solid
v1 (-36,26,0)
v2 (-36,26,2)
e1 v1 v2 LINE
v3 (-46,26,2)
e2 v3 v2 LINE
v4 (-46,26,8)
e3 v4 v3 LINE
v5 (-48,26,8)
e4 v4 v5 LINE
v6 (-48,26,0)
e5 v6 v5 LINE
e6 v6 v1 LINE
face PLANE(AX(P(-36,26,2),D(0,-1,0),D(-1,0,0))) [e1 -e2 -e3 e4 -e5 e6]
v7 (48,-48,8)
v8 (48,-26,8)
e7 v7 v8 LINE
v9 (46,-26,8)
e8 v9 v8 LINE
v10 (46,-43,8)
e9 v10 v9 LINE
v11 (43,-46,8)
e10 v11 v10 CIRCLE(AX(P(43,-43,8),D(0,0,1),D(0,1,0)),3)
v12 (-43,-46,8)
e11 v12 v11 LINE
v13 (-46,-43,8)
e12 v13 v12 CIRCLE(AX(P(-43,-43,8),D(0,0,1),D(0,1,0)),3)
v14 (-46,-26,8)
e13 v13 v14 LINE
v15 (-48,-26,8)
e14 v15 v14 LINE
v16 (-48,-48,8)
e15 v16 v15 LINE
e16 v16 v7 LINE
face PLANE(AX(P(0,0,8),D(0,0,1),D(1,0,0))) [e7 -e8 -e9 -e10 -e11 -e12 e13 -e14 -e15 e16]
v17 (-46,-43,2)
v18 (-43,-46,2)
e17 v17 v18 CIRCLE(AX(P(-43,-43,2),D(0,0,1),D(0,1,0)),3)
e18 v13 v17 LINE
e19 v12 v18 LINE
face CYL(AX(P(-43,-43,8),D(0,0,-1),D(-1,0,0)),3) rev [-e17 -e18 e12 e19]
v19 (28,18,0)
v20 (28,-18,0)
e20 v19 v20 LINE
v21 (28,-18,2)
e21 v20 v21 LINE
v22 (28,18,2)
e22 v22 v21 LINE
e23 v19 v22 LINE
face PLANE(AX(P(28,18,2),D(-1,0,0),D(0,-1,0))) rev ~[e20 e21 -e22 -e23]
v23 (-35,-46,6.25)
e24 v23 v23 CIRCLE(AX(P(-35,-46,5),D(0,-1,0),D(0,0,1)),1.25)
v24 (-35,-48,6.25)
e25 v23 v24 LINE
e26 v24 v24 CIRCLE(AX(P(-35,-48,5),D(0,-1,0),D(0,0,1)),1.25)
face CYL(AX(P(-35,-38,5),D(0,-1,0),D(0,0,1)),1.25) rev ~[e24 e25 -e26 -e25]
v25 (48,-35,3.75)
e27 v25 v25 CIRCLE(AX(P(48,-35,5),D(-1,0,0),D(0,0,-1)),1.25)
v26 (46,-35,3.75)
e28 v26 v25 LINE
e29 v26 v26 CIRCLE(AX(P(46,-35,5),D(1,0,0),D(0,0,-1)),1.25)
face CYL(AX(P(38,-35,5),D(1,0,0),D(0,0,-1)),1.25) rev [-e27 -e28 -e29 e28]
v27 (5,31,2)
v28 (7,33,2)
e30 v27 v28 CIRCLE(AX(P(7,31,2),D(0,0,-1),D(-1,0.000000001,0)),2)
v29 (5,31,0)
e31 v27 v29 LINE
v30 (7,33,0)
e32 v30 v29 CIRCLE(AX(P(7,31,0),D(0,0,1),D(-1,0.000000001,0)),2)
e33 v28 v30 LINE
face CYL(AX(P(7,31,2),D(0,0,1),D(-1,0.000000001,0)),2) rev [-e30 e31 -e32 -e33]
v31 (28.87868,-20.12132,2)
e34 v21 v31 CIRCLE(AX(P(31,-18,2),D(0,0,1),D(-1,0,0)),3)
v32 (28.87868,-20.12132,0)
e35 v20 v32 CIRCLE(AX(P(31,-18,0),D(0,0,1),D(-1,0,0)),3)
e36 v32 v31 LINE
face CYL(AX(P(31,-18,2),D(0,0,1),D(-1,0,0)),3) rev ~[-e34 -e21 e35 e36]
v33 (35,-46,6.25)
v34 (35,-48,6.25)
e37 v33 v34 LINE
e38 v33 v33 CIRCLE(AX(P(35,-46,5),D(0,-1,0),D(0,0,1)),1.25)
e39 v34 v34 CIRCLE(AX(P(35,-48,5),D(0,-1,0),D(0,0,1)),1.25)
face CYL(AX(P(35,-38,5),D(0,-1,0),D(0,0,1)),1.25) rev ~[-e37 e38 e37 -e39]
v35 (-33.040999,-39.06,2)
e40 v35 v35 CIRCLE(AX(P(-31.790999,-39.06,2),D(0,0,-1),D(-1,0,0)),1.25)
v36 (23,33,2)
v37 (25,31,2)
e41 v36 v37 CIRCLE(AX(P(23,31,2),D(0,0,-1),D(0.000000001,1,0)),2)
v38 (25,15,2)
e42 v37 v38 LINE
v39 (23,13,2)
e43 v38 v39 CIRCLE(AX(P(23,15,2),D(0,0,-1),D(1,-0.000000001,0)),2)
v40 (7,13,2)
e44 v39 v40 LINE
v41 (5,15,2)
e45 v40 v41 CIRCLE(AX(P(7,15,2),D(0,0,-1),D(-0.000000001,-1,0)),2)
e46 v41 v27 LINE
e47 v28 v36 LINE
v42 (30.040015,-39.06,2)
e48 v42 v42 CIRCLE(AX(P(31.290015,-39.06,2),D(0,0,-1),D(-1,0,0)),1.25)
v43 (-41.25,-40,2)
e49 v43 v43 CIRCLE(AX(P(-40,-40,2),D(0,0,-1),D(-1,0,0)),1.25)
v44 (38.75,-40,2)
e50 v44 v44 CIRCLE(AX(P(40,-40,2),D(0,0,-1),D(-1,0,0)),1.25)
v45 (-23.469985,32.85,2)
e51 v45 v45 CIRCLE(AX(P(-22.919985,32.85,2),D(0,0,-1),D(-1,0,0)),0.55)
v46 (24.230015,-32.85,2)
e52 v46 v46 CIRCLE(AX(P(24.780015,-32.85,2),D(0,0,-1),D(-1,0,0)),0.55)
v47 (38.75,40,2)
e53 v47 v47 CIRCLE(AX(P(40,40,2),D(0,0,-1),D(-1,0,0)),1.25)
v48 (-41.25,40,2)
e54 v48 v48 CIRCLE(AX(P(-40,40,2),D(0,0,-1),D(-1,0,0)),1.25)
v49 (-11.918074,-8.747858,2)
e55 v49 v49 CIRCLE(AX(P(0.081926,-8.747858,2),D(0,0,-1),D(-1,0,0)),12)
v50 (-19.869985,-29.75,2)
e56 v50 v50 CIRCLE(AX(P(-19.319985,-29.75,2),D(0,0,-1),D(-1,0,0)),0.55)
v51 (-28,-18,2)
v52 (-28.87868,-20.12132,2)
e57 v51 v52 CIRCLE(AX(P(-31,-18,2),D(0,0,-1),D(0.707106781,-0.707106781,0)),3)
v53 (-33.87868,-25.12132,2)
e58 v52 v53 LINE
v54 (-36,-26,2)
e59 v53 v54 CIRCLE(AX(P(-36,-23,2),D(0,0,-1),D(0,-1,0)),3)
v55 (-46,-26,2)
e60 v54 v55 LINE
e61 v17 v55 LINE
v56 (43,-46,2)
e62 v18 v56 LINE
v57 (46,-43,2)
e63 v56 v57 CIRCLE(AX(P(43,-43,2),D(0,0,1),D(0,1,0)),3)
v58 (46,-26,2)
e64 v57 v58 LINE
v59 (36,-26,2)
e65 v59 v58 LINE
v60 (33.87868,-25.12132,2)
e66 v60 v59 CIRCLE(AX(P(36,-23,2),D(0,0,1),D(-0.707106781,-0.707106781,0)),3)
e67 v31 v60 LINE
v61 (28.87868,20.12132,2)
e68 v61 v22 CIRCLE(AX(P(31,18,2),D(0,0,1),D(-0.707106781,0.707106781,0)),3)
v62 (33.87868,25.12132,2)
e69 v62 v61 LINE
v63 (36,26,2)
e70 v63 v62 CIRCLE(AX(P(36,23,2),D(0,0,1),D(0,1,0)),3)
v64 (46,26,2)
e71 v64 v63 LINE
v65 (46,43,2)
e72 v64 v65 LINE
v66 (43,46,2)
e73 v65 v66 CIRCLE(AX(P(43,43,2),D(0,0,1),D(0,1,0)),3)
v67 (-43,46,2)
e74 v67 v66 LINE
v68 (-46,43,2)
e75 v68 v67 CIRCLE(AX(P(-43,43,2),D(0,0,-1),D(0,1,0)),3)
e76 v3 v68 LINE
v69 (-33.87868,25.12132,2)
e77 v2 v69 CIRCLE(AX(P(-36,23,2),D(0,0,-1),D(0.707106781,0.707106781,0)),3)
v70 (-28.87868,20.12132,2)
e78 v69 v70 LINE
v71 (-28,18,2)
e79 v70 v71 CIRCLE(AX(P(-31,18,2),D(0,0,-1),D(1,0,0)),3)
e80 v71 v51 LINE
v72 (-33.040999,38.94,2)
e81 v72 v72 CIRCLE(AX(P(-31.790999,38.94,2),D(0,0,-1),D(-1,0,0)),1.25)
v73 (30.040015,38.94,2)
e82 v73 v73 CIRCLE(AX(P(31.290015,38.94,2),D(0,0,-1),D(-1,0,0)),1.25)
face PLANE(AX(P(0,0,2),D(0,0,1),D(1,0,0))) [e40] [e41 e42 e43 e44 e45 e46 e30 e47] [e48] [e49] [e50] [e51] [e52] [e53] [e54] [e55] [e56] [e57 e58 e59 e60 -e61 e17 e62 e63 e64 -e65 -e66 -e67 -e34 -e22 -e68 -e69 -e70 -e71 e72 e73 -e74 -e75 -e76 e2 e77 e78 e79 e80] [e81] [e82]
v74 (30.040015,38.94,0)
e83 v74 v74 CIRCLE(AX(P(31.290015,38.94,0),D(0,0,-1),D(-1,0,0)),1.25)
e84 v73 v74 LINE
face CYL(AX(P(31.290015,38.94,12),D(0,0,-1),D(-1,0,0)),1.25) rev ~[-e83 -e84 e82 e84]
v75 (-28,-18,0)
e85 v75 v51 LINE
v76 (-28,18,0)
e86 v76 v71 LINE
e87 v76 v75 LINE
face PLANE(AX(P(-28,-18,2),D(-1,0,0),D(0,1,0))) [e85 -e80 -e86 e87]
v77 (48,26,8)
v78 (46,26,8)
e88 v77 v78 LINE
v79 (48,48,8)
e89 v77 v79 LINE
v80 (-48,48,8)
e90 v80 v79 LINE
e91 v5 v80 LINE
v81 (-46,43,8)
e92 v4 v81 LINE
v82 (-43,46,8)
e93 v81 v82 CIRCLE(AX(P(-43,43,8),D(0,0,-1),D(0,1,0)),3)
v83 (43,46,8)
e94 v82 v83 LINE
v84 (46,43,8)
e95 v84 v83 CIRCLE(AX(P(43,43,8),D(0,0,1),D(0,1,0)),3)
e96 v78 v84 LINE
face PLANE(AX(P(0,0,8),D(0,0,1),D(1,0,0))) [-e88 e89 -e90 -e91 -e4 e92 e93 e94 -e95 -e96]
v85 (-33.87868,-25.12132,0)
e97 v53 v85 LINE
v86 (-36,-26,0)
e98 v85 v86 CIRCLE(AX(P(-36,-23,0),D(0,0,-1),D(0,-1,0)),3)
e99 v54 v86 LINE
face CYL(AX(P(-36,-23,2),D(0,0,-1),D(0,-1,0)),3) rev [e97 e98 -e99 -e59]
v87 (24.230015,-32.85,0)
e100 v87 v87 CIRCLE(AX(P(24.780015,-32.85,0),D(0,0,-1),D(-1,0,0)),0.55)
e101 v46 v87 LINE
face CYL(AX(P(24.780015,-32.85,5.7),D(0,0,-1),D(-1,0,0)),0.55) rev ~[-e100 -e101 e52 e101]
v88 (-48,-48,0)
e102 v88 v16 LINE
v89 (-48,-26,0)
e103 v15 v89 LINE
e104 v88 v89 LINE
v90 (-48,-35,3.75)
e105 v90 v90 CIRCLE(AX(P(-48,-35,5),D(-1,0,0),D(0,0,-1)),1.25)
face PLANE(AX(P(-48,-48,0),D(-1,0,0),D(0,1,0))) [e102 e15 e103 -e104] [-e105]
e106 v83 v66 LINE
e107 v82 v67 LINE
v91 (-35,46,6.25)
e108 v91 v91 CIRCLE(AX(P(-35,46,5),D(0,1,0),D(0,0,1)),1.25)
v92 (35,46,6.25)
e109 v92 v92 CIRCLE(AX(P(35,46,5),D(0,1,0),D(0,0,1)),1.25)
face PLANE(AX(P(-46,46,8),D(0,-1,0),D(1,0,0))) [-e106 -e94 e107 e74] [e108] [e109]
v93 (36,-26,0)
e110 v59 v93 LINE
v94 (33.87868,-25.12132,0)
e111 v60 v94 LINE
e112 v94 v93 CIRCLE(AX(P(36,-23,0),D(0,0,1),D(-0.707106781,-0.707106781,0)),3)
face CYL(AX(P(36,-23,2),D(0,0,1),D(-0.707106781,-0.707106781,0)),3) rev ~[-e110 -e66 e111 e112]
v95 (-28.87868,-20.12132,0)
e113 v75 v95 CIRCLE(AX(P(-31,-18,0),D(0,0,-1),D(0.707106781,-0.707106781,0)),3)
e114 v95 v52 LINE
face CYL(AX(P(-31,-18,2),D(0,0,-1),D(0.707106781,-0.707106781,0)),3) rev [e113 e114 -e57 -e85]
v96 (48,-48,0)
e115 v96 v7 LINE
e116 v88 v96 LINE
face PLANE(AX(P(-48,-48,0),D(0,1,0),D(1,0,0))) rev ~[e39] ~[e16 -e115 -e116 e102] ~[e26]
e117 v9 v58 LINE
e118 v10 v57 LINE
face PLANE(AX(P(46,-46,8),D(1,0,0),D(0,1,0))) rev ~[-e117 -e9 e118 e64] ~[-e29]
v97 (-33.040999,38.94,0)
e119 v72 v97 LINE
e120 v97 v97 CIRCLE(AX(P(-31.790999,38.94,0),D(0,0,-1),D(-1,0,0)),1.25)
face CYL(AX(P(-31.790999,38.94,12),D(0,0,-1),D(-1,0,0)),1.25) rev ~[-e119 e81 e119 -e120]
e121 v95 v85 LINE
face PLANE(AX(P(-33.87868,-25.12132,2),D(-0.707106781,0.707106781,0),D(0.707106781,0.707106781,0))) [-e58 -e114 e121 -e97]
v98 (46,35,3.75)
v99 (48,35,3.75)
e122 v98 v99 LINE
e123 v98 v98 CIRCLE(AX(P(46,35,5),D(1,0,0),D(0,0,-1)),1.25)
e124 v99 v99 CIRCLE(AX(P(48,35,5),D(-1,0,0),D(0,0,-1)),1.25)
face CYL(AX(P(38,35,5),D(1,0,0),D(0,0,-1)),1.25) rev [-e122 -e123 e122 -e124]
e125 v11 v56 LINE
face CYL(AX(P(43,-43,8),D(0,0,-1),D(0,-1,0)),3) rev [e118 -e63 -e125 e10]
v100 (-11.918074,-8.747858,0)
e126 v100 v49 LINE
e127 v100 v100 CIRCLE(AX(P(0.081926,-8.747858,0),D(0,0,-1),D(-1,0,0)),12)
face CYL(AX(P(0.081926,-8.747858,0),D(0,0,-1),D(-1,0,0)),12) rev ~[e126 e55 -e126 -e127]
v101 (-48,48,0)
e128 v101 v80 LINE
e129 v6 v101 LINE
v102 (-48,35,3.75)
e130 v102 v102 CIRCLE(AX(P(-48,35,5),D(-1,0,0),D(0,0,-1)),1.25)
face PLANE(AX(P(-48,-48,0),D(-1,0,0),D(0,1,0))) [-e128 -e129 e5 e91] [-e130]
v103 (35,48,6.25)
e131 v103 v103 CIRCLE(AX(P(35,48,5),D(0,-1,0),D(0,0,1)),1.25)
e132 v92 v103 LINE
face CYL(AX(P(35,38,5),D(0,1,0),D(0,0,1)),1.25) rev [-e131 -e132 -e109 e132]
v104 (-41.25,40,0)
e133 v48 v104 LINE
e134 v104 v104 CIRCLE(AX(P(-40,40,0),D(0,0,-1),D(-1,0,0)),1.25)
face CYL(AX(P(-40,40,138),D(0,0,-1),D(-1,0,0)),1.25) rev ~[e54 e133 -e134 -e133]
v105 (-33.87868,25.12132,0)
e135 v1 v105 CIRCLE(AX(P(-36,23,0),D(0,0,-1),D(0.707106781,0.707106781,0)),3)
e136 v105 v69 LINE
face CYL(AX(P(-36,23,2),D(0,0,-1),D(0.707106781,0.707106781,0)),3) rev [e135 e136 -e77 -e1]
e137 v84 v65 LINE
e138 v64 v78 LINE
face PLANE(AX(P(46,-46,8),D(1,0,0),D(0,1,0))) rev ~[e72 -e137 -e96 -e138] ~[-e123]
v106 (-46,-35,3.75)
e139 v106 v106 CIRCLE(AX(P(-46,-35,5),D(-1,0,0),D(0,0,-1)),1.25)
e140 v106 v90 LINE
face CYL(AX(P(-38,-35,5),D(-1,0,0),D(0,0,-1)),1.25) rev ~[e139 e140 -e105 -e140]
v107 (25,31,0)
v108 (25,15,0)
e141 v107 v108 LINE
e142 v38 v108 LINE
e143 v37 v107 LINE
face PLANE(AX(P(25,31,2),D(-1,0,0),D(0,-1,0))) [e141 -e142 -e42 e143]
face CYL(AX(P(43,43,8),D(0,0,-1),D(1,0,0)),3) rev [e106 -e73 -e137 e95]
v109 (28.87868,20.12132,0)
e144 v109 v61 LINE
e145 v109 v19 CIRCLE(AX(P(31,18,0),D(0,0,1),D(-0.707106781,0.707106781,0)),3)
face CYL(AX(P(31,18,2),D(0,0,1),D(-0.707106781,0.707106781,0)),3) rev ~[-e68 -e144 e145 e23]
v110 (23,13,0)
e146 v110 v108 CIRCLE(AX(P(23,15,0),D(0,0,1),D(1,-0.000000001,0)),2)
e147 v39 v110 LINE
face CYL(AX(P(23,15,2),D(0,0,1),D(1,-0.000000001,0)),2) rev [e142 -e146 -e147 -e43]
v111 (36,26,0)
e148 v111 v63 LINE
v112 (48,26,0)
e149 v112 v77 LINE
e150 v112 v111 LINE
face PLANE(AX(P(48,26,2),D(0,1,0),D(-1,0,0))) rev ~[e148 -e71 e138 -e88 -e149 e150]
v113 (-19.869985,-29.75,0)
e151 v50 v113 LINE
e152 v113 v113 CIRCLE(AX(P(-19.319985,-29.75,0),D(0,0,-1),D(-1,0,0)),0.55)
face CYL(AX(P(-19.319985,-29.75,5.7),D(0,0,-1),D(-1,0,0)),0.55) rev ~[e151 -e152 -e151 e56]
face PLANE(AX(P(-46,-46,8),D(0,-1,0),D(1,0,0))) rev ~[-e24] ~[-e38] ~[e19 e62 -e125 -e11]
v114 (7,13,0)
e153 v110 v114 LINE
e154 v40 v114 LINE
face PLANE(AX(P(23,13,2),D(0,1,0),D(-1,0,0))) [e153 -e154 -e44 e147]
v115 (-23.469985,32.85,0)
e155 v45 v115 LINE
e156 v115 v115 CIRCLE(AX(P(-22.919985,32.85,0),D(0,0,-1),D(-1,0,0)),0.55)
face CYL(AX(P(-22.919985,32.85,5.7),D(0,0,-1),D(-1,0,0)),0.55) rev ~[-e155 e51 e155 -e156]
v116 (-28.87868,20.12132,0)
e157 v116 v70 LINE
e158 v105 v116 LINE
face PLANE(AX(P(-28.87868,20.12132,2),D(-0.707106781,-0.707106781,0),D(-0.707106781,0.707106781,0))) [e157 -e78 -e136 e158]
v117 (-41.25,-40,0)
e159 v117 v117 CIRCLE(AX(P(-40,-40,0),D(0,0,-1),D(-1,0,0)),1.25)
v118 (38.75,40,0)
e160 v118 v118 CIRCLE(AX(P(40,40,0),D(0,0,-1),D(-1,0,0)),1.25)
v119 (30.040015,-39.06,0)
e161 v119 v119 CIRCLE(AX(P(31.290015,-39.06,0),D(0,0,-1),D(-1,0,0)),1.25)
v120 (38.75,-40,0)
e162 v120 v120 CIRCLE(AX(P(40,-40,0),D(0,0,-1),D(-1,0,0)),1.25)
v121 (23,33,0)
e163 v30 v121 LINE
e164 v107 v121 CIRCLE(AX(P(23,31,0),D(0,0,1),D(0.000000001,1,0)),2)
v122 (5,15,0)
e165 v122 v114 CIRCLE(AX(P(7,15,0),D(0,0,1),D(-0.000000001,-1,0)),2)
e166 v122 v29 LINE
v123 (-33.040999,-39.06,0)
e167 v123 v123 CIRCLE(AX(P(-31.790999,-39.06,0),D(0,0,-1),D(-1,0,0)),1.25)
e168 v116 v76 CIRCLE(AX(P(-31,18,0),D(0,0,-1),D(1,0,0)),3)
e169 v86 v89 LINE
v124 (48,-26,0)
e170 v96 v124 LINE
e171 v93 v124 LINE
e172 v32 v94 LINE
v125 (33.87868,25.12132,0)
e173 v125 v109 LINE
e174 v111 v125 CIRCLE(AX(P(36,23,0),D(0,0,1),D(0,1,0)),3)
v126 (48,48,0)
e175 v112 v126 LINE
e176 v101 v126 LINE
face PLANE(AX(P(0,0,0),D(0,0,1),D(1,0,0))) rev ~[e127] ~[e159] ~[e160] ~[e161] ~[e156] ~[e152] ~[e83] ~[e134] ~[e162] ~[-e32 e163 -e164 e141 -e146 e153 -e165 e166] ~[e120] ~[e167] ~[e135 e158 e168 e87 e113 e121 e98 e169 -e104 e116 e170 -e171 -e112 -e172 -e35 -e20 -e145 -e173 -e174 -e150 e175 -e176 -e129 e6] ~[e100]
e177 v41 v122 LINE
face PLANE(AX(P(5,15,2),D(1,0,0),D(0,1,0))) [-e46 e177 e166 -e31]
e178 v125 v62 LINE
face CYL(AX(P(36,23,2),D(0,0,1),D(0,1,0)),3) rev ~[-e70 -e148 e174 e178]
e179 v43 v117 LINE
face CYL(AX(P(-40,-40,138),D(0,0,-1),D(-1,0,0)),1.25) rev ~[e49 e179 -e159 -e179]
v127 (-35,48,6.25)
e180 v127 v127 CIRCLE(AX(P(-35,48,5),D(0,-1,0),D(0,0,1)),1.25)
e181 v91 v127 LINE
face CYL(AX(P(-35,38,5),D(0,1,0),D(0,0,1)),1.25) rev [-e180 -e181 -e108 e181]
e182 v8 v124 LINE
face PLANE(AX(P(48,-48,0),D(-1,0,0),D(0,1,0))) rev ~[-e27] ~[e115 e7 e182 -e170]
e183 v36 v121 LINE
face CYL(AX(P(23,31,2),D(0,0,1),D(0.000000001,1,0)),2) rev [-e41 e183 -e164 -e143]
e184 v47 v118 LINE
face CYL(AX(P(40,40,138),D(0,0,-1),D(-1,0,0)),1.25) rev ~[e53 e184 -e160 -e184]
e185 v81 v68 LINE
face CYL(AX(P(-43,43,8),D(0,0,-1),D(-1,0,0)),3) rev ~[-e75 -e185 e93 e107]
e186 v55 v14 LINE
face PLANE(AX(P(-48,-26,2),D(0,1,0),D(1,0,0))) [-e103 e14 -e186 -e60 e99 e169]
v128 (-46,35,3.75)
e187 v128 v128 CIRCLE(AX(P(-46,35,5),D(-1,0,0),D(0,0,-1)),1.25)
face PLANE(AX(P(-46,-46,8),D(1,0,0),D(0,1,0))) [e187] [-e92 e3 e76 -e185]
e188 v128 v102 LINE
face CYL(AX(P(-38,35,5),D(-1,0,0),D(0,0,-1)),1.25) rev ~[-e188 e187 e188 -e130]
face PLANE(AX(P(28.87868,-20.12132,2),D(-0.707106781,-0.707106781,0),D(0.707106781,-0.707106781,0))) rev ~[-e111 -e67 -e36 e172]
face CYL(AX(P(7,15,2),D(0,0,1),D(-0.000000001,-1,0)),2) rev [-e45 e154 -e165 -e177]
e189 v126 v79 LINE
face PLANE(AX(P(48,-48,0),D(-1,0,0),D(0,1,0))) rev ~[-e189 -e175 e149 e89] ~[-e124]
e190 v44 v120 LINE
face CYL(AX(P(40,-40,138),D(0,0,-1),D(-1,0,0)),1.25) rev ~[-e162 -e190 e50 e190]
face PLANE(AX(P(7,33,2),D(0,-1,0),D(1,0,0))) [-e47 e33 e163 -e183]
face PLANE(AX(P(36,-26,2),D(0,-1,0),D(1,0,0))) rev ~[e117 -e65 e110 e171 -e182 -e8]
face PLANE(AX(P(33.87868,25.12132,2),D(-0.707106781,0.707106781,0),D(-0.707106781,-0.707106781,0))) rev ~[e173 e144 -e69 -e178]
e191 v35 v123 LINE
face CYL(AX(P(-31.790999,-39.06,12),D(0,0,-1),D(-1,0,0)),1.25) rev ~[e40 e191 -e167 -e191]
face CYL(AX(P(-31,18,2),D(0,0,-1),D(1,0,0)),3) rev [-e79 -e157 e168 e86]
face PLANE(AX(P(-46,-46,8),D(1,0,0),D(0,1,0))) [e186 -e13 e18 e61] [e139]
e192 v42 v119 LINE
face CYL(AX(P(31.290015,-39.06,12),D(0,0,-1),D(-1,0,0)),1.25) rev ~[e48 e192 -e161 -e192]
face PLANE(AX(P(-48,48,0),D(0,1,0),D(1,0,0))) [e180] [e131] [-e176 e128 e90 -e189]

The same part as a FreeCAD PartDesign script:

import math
import FreeCAD as App
import Part
import Sketcher
from FreeCAD import Vector
Q = App.Units.Quantity


def edges_at(feature, points):
    """Names of the edges that pass closest to the given points."""
    edges = feature.Shape.Edges
    near = lambda p: min(range(len(edges)), key=lambda i: edges[i].distToShape(Part.Vertex(*p))[0])
    return sorted({f"Edge{near(p) + 1}" for p in points})


def add_polygon(sketch, points):
    """Adds a closed chain of lines whose ends are joined by coincident constraints."""
    first, n = sketch.GeometryCount, len(points)
    for a, b in zip(points, points[1:] + points[:1]):
        sketch.addGeometry(Part.LineSegment(App.Vector(*a, 0), App.Vector(*b, 0)), False)
    for i in range(n):
        sketch.addConstraint(Sketcher.Constraint("Coincident", first + i, 2, first + (i + 1) % n, 1))

doc = App.newDocument("Part")
body = doc.addObject("PartDesign::Body", "Body")

# Sketch on XY plane
sketch1 = body.newObject("Sketcher::SketchObject", "Sketch")
sketch1.AttachmentSupport = (doc.getObject("XY_Plane"), [""])
sketch1.MapMode = "FlatFace"
add_polygon(sketch1, [(-48, 48), (-48, -48), (48, -48), (48, 48)])  # lines 0-3
sketch1.addConstraint(Sketcher.Constraint("Vertical", 0))
sketch1.addConstraint(Sketcher.Constraint("Horizontal", 1))
sketch1.addConstraint(Sketcher.Constraint("Vertical", 2))
sketch1.addConstraint(Sketcher.Constraint("Horizontal", 3))
sketch1.addConstraint(Sketcher.Constraint("Symmetric", 0, 2, 2, 2, -1, 1))
sketch1.addConstraint(Sketcher.Constraint("Equal", 3, 0))
sketch1.addConstraint(Sketcher.Constraint("DistanceX", 1, 1, 1, 2, 96.0))
pad1 = body.newObject("PartDesign::Pad", "Pad")
pad1.Profile = sketch1
pad1.Length = 8

# Sketch on XY plane
sketch2 = body.newObject("Sketcher::SketchObject", "Sketch001")
sketch2.AttachmentSupport = (doc.getObject("XY_Plane"), [""])
sketch2.MapMode = "FlatFace"
sketch2.AttachmentOffset = App.Placement(Vector(0, 0, 8), App.Rotation())
add_polygon(sketch2, [(-46, 46), (-46, -46), (46, -46), (46, 46)])  # lines 0-3
sketch2.addConstraint(Sketcher.Constraint("Vertical", 0))
sketch2.addConstraint(Sketcher.Constraint("Horizontal", 1))
sketch2.addConstraint(Sketcher.Constraint("Vertical", 2))
sketch2.addConstraint(Sketcher.Constraint("Horizontal", 3))
sketch2.addConstraint(Sketcher.Constraint("Symmetric", 0, 2, 2, 2, -1, 1))
sketch2.addConstraint(Sketcher.Constraint("Equal", 3, 0))
sketch2.addConstraint(Sketcher.Constraint("DistanceX", 1, 1, 1, 2, 92.0))
pocket1 = body.newObject("PartDesign::Pocket", "Pocket")
pocket1.Profile = sketch2
pocket1.Length = 6

# Sketch on XY plane
sketch3 = body.newObject("Sketcher::SketchObject", "Sketch002")
sketch3.AttachmentSupport = (doc.getObject("XY_Plane"), [""])
sketch3.MapMode = "FlatFace"
sketch3.AttachmentOffset = App.Placement(Vector(0, 0, 2), App.Rotation())
sketch3.addGeometry(Part.LineSegment(Vector(-33.9, -25.1, 0), Vector(-28.9, -20.1, 0)), False)
sketch3.addGeometry(Part.ArcOfCircle(Part.Circle(Vector(-31, -18, 0), Vector(0, 0, 1), 3), math.radians(-45), math.radians(0)), False)
sketch3.addGeometry(Part.LineSegment(Vector(-28, -18, 0), Vector(-28, 18, 0)), False)
sketch3.addGeometry(Part.ArcOfCircle(Part.Circle(Vector(-31, 18, 0), Vector(0, 0, 1), 3), math.radians(0), math.radians(45)), False)
sketch3.addGeometry(Part.LineSegment(Vector(-28.9, 20.1, 0), Vector(-33.9, 25.1, 0)), False)
sketch3.addGeometry(Part.ArcOfCircle(Part.Circle(Vector(-36, 23, 0), Vector(0, 0, 1), 3), math.radians(45), math.radians(90)), False)
sketch3.addGeometry(Part.LineSegment(Vector(-36, 26, 0), Vector(-48, 26, 0)), False)
sketch3.addGeometry(Part.LineSegment(Vector(-48, 26, 0), Vector(-48, -26, 0)), False)
sketch3.addGeometry(Part.LineSegment(Vector(-48, -26, 0), Vector(-36, -26, 0)), False)
sketch3.addGeometry(Part.ArcOfCircle(Part.Circle(Vector(-36, -23, 0), Vector(0, 0, 1), 3), math.radians(-90), math.radians(-45)), False)
sketch3.addGeometry(Part.LineSegment(Vector(48, -26, 0), Vector(48, 26, 0)), False)
sketch3.addGeometry(Part.LineSegment(Vector(48, 26, 0), Vector(36, 26, 0)), False)
sketch3.addGeometry(Part.ArcOfCircle(Part.Circle(Vector(36, 23, 0), Vector(0, 0, 1), 3), math.radians(90), math.radians(135)), False)
sketch3.addGeometry(Part.LineSegment(Vector(33.9, 25.1, 0), Vector(28.9, 20.1, 0)), False)
sketch3.addGeometry(Part.ArcOfCircle(Part.Circle(Vector(31, 18, 0), Vector(0, 0, 1), 3), math.radians(135), math.radians(180)), False)
sketch3.addGeometry(Part.LineSegment(Vector(28, 18, 0), Vector(28, -18, 0)), False)
sketch3.addGeometry(Part.ArcOfCircle(Part.Circle(Vector(31, -18, 0), Vector(0, 0, 1), 3), math.radians(180), math.radians(225)), False)
sketch3.addGeometry(Part.LineSegment(Vector(28.9, -20.1, 0), Vector(33.9, -25.1, 0)), False)
sketch3.addGeometry(Part.ArcOfCircle(Part.Circle(Vector(36, -23, 0), Vector(0, 0, 1), 3), math.radians(-135), math.radians(-90)), False)
sketch3.addGeometry(Part.LineSegment(Vector(36, -26, 0), Vector(48, -26, 0)), False)
sketch3.addConstraint(Sketcher.Constraint("Tangent", 0, 2, 1, 1))
sketch3.addConstraint(Sketcher.Constraint("Tangent", 1, 2, 2, 1))
sketch3.addConstraint(Sketcher.Constraint("Tangent", 2, 2, 3, 1))
sketch3.addConstraint(Sketcher.Constraint("Tangent", 3, 2, 4, 1))
sketch3.addConstraint(Sketcher.Constraint("Tangent", 4, 2, 5, 1))
sketch3.addConstraint(Sketcher.Constraint("Tangent", 5, 2, 6, 1))
sketch3.addConstraint(Sketcher.Constraint("Coincident", 6, 2, 7, 1))
sketch3.addConstraint(Sketcher.Constraint("Coincident", 7, 2, 8, 1))
sketch3.addConstraint(Sketcher.Constraint("Tangent", 8, 2, 9, 1))
sketch3.addConstraint(Sketcher.Constraint("Tangent", 9, 2, 0, 1))
sketch3.addConstraint(Sketcher.Constraint("Coincident", 10, 2, 11, 1))
sketch3.addConstraint(Sketcher.Constraint("Tangent", 11, 2, 12, 1))
sketch3.addConstraint(Sketcher.Constraint("Tangent", 12, 2, 13, 1))
sketch3.addConstraint(Sketcher.Constraint("Tangent", 13, 2, 14, 1))
sketch3.addConstraint(Sketcher.Constraint("Tangent", 14, 2, 15, 1))
sketch3.addConstraint(Sketcher.Constraint("Tangent", 15, 2, 16, 1))
sketch3.addConstraint(Sketcher.Constraint("Tangent", 16, 2, 17, 1))
sketch3.addConstraint(Sketcher.Constraint("Tangent", 17, 2, 18, 1))
sketch3.addConstraint(Sketcher.Constraint("Tangent", 18, 2, 19, 1))
sketch3.addConstraint(Sketcher.Constraint("Coincident", 19, 2, 10, 1))
sketch3.addConstraint(Sketcher.Constraint("Vertical", 2))
sketch3.addConstraint(Sketcher.Constraint("Horizontal", 6))
sketch3.addConstraint(Sketcher.Constraint("Vertical", 7))
sketch3.addConstraint(Sketcher.Constraint("Horizontal", 8))
sketch3.addConstraint(Sketcher.Constraint("Vertical", 10))
sketch3.addConstraint(Sketcher.Constraint("Horizontal", 11))
sketch3.addConstraint(Sketcher.Constraint("Vertical", 15))
sketch3.addConstraint(Sketcher.Constraint("Horizontal", 19))
sketch3.addConstraint(Sketcher.Constraint("Equal", 1, 3))
sketch3.addConstraint(Sketcher.Constraint("Equal", 3, 5))
sketch3.addConstraint(Sketcher.Constraint("Equal", 5, 9))
sketch3.addConstraint(Sketcher.Constraint("Equal", 9, 12))
sketch3.addConstraint(Sketcher.Constraint("Equal", 12, 14))
sketch3.addConstraint(Sketcher.Constraint("Equal", 14, 16))
sketch3.addConstraint(Sketcher.Constraint("Equal", 16, 18))
sketch3.addConstraint(Sketcher.Constraint("Symmetric", 9, 3, 12, 3, -1, 1))
sketch3.addConstraint(Sketcher.Constraint("Symmetric", 1, 3, 14, 3, -1, 1))
sketch3.addConstraint(Sketcher.Constraint("Symmetric", 5, 3, 18, 3, -1, 1))
sketch3.addConstraint(Sketcher.Constraint("Symmetric", 5, 3, 12, 3, -2))
sketch3.addConstraint(Sketcher.Constraint("Perpendicular", 0, 4))
sketch3.addConstraint(Sketcher.Constraint("Perpendicular", 13, 17))
sketch3.addConstraint(Sketcher.Constraint("Horizontal", 3, 3, 14, 3))
sketch3.addConstraint(Sketcher.Constraint("Equal", 8, 11))
sketch3.addConstraint(Sketcher.Constraint("Radius", 1, 3.0))
sketch3.addConstraint(Sketcher.Constraint("DistanceX", 6, 2, 6, 1, 12.0))
sketch3.addConstraint(Sketcher.Constraint("DistanceY", 2, 1, 2, 2, 36.0))
sketch3.addConstraint(Sketcher.Constraint("DistanceY", 7, 2, 7, 1, 52.0))
sketch3.addConstraint(Sketcher.Constraint("DistanceX", 1, 3, -1, 1, 31.0))
pocket2 = body.newObject("PartDesign::Pocket", "Pocket001")
pocket2.Profile = sketch3
pocket2.Length = 12
pocket2.Midplane = True
doc.recompute()

fillet = body.newObject("PartDesign::Fillet", "Fillet")
fillet.Base = (pocket2, edges_at(pocket2, [
    (-46, -46, 5),
    (-46, 46, 5),
    (46, 46, 5),
    (46, -46, 5),
]))
fillet.Radius = 3

# Sketch on XZ plane
sketch4 = body.newObject("Sketcher::SketchObject", "Sketch003")
sketch4.AttachmentSupport = (doc.getObject("XZ_Plane"), [""])
sketch4.MapMode = "FlatFace"
sketch4.AttachmentOffset = App.Placement(Vector(0, 0, 35), App.Rotation())
add_polygon(sketch4, [(37.2, 5), (48, 5), (48, 3.8), (38, 3.8)])  # lines 0-3
sketch4.addGeometry(Part.LineSegment(Vector(48, 5, 0), Vector(37.2, 5, 0)), True)  # axis
sketch4.addConstraint(Sketcher.Constraint("Horizontal", 0))
sketch4.addConstraint(Sketcher.Constraint("Vertical", 1))
sketch4.addConstraint(Sketcher.Constraint("Horizontal", 2))
sketch4.addConstraint(Sketcher.Constraint("Horizontal", 4))
sketch4.addConstraint(Sketcher.Constraint("Coincident", 4, 1, 0, 2))
sketch4.addConstraint(Sketcher.Constraint("Equal", 0, 4))
sketch4.addConstraint(Sketcher.Constraint("DistanceX", 2, 2, 2, 1, 10.0))
sketch4.addConstraint(Sketcher.Constraint("Angle", 3, Q("121 deg")))
sketch4.addConstraint(Sketcher.Constraint("DistanceX", -1, 1, 0, 2, 48.0))
sketch4.addConstraint(Sketcher.Constraint("DistanceY", -1, 1, 0, 2, 5.0))
sketch4.addConstraint(Sketcher.Constraint("DistanceY", 1, 2, 1, 1, 1.25))
groove = body.newObject("PartDesign::Groove", "Groove")
groove.Profile = sketch4
groove.ReferenceAxis = (sketch4, ["Axis0"])
groove.Angle = 360
doc.recompute()

linearpattern = body.newObject("PartDesign::LinearPattern", "LinearPattern")
linearpattern.Originals = [groove]
linearpattern.Direction = (doc.getObject("Y_Axis"), [""])
linearpattern.Mode = "offset"
linearpattern.Offset = 70
linearpattern.Occurrences = 2
body.Tip = linearpattern

# Sketch on YZ plane
sketch5 = body.newObject("Sketcher::SketchObject", "Sketch004")
sketch5.AttachmentSupport = (doc.getObject("YZ_Plane"), [""])
sketch5.MapMode = "FlatFace"
sketch5.AttachmentOffset = App.Placement(Vector(0, 0, 35), App.Rotation())
add_polygon(sketch5, [(37.2, 5), (48, 5), (48, 6.2), (38, 6.2)])  # lines 0-3
sketch5.addGeometry(Part.LineSegment(Vector(48, 5, 0), Vector(37.2, 5, 0)), True)  # axis
sketch5.addConstraint(Sketcher.Constraint("Horizontal", 0))
sketch5.addConstraint(Sketcher.Constraint("Vertical", 1))
sketch5.addConstraint(Sketcher.Constraint("Horizontal", 2))
sketch5.addConstraint(Sketcher.Constraint("Horizontal", 4))
sketch5.addConstraint(Sketcher.Constraint("Coincident", 4, 1, 0, 2))
sketch5.addConstraint(Sketcher.Constraint("Equal", 0, 4))
sketch5.addConstraint(Sketcher.Constraint("DistanceX", 2, 2, 2, 1, 10.0))
sketch5.addConstraint(Sketcher.Constraint("Angle", 3, Q("-121 deg")))
sketch5.addConstraint(Sketcher.Constraint("DistanceX", -1, 1, 0, 2, 48.0))
sketch5.addConstraint(Sketcher.Constraint("DistanceY", -1, 1, 0, 2, 5.0))
sketch5.addConstraint(Sketcher.Constraint("DistanceY", 1, 1, 1, 2, 1.25))
groove2 = body.newObject("PartDesign::Groove", "Groove001")
groove2.Profile = sketch5
groove2.ReferenceAxis = (sketch5, ["Axis0"])
groove2.Angle = 360
doc.recompute()

linearpattern2 = body.newObject("PartDesign::LinearPattern", "LinearPattern001")
linearpattern2.Originals = [groove2]
linearpattern2.Direction = (doc.getObject("X_Axis"), [""])
linearpattern2.Mode = "offset"
linearpattern2.Offset = 70
linearpattern2.Occurrences = 2
linearpattern2.Reversed = True
body.Tip = linearpattern2
doc.recompute()

mirrored = body.newObject("PartDesign::Mirrored", "Mirrored")
mirrored.Originals = [groove]
mirrored.MirrorPlane = (doc.getObject("YZ_Plane"), [""])
body.Tip = mirrored

# Sketch on XZ plane
sketch6 = body.newObject("Sketcher::SketchObject", "Sketch005")
sketch6.AttachmentSupport = (doc.getObject("XZ_Plane"), [""])
sketch6.MapMode = "FlatFace"
sketch6.AttachmentOffset = App.Placement(Vector(0, 0, -35), App.Rotation())
add_polygon(sketch6, [(-48, 5), (-37.2, 5), (-38, 3.8), (-48, 3.8)])  # lines 0-3
sketch6.addGeometry(Part.LineSegment(Vector(-37.2, 5, 0), Vector(-48, 5, 0)), True)  # axis
sketch6.addConstraint(Sketcher.Constraint("Horizontal", 0))
sketch6.addConstraint(Sketcher.Constraint("Horizontal", 2))
sketch6.addConstraint(Sketcher.Constraint("Vertical", 3))
sketch6.addConstraint(Sketcher.Constraint("Horizontal", 4))
sketch6.addConstraint(Sketcher.Constraint("Coincident", 4, 1, 0, 2))
sketch6.addConstraint(Sketcher.Constraint("Vertical", 2, 2, 4, 2))
sketch6.addConstraint(Sketcher.Constraint("DistanceX", 2, 2, 2, 1, 10.0))
sketch6.addConstraint(Sketcher.Constraint("Angle", 1, Q("-121 deg")))
sketch6.addConstraint(Sketcher.Constraint("DistanceY", -1, 1, 0, 2, 5.0))
sketch6.addConstraint(Sketcher.Constraint("DistanceX", 1, 2, -1, 1, 38.0))
sketch6.addConstraint(Sketcher.Constraint("DistanceY", 3, 1, 3, 2, 1.25))
groove3 = body.newObject("PartDesign::Groove", "Groove002")
groove3.Profile = sketch6
groove3.ReferenceAxis = (sketch6, ["Axis0"])
groove3.Angle = 360
doc.recompute()

mirrored2 = body.newObject("PartDesign::Mirrored", "Mirrored001")
mirrored2.Originals = [groove2]
mirrored2.MirrorPlane = (doc.getObject("XZ_Plane"), [""])
body.Tip = mirrored2

# Sketch on YZ plane
sketch7 = body.newObject("Sketcher::SketchObject", "Sketch006")
sketch7.AttachmentSupport = (doc.getObject("YZ_Plane"), [""])
sketch7.MapMode = "FlatFace"
sketch7.AttachmentOffset = App.Placement(Vector(0, 0, -35), App.Rotation())
add_polygon(sketch7, [(-48, 5), (-37.2, 5), (-38, 6.2), (-48, 6.2)])  # lines 0-3
sketch7.addGeometry(Part.LineSegment(Vector(-37.2, 5, 0), Vector(-48, 5, 0)), True)  # axis
sketch7.addConstraint(Sketcher.Constraint("Horizontal", 0))
sketch7.addConstraint(Sketcher.Constraint("Horizontal", 2))
sketch7.addConstraint(Sketcher.Constraint("Vertical", 3))
sketch7.addConstraint(Sketcher.Constraint("Horizontal", 4))
sketch7.addConstraint(Sketcher.Constraint("Coincident", 4, 1, 0, 2))
sketch7.addConstraint(Sketcher.Constraint("Vertical", 2, 2, 4, 2))
sketch7.addConstraint(Sketcher.Constraint("DistanceX", 2, 2, 2, 1, 10.0))
sketch7.addConstraint(Sketcher.Constraint("Angle", 1, Q("121 deg")))
sketch7.addConstraint(Sketcher.Constraint("DistanceY", -1, 1, 0, 2, 5.0))
sketch7.addConstraint(Sketcher.Constraint("DistanceX", 1, 2, -1, 1, 38.0))
sketch7.addConstraint(Sketcher.Constraint("DistanceY", 3, 2, 3, 1, 1.25))
groove4 = body.newObject("PartDesign::Groove", "Groove003")
groove4.Profile = sketch7
groove4.ReferenceAxis = (sketch7, ["Axis0"])
groove4.Angle = 360

# Sketch on XY plane
sketch8 = body.newObject("Sketcher::SketchObject", "Sketch007")
sketch8.AttachmentSupport = (doc.getObject("XY_Plane"), [""])
sketch8.MapMode = "FlatFace"
sketch8.AttachmentOffset = App.Placement(Vector(0, 0, 2), App.Rotation())
sketch8.addGeometry(Part.Circle(Vector(-19.3, -29.8, 0), Vector(0, 0, 1), 0.6), False)
sketch8.addGeometry(Part.Circle(Vector(24.8, -32.9, 0), Vector(0, 0, 1), 0.6), False)
sketch8.addGeometry(Part.Circle(Vector(-22.9, 32.9, 0), Vector(0, 0, 1), 0.6), False)
sketch8.addConstraint(Sketcher.Constraint("Equal", 0, 1))
sketch8.addConstraint(Sketcher.Constraint("Equal", 1, 2))
sketch8.addConstraint(Sketcher.Constraint("Diameter", 0, 1.1))
sketch8.addConstraint(Sketcher.Constraint("DistanceX", 0, 3, 1, 3, 44.1))
sketch8.addConstraint(Sketcher.Constraint("DistanceY", 1, 3, 0, 3, 3.1))
sketch8.addConstraint(Sketcher.Constraint("DistanceX", 2, 3, 0, 3, 3.6))
sketch8.addConstraint(Sketcher.Constraint("DistanceY", 0, 3, 2, 3, 62.6))
sketch8.addConstraint(Sketcher.Constraint("DistanceY", 0, 3, -1, 1, 29.75))
sketch8.addConstraint(Sketcher.Constraint("DistanceX", 0, 3, -1, 1, 19.319985))
doc.recompute()
hole = body.newObject("PartDesign::Hole", "Hole")
hole.Profile = sketch8
hole.ThreadType = "None"
hole.Diameter = 1.1
hole.DepthType = "Dimension"
hole.Depth = 3.7
hole.DrillPoint = "Angled"
hole.DrillPointAngle = 118

# Sketch on XY plane
sketch9 = body.newObject("Sketcher::SketchObject", "Sketch008")
sketch9.AttachmentSupport = (doc.getObject("XY_Plane"), [""])
sketch9.MapMode = "FlatFace"
sketch9.addGeometry(Part.Circle(Vector(0, -9, 0), Vector(0, 0, 1), 12), False)
sketch9.addConstraint(Sketcher.Constraint("Diameter", 0, 24.0))
sketch9.addConstraint(Sketcher.Constraint("DistanceY", 0, 3, -1, 1, 8.747858))
sketch9.addConstraint(Sketcher.Constraint("DistanceX", -1, 1, 0, 3, 0.081926))
pocket3 = body.newObject("PartDesign::Pocket", "Pocket002")
pocket3.Profile = sketch9
pocket3.Length = 10
pocket3.Reversed = True

# Sketch on XY plane
sketch10 = body.newObject("Sketcher::SketchObject", "Sketch009")
sketch10.AttachmentSupport = (doc.getObject("XY_Plane"), [""])
sketch10.MapMode = "FlatFace"
sketch10.AttachmentOffset = App.Placement(Vector(0, 0, 2), App.Rotation())
sketch10.addGeometry(Part.LineSegment(Vector(25, 15, 0), Vector(25, 31, 0)), False)
sketch10.addGeometry(Part.ArcOfCircle(Part.Circle(Vector(23, 31, 0), Vector(0, 0, 1), 2), math.radians(0), math.radians(90)), False)
sketch10.addGeometry(Part.LineSegment(Vector(23, 33, 0), Vector(7, 33, 0)), False)
sketch10.addGeometry(Part.ArcOfCircle(Part.Circle(Vector(7, 31, 0), Vector(0, 0, 1), 2), math.radians(90), math.radians(180)), False)
sketch10.addGeometry(Part.LineSegment(Vector(5, 31, 0), Vector(5, 15, 0)), False)
sketch10.addGeometry(Part.ArcOfCircle(Part.Circle(Vector(7, 15, 0), Vector(0, 0, 1), 2), math.radians(-180), math.radians(-90)), False)
sketch10.addGeometry(Part.LineSegment(Vector(7, 13, 0), Vector(23, 13, 0)), False)
sketch10.addGeometry(Part.ArcOfCircle(Part.Circle(Vector(23, 15, 0), Vector(0, 0, 1), 2), math.radians(-90), math.radians(0)), False)
sketch10.addConstraint(Sketcher.Constraint("Tangent", 0, 2, 1, 1))
sketch10.addConstraint(Sketcher.Constraint("Tangent", 1, 2, 2, 1))
sketch10.addConstraint(Sketcher.Constraint("Tangent", 2, 2, 3, 1))
sketch10.addConstraint(Sketcher.Constraint("Tangent", 3, 2, 4, 1))
sketch10.addConstraint(Sketcher.Constraint("Tangent", 4, 2, 5, 1))
sketch10.addConstraint(Sketcher.Constraint("Tangent", 5, 2, 6, 1))
sketch10.addConstraint(Sketcher.Constraint("Tangent", 6, 2, 7, 1))
sketch10.addConstraint(Sketcher.Constraint("Tangent", 7, 2, 0, 1))
sketch10.addConstraint(Sketcher.Constraint("Vertical", 0))
sketch10.addConstraint(Sketcher.Constraint("Horizontal", 2))
sketch10.addConstraint(Sketcher.Constraint("Vertical", 4))
sketch10.addConstraint(Sketcher.Constraint("Horizontal", 6))
sketch10.addConstraint(Sketcher.Constraint("Equal", 1, 3))
sketch10.addConstraint(Sketcher.Constraint("Equal", 3, 5))
sketch10.addConstraint(Sketcher.Constraint("Equal", 5, 7))
sketch10.addConstraint(Sketcher.Constraint("Equal", 6, 0))
sketch10.addConstraint(Sketcher.Constraint("Radius", 1, 2.0))
sketch10.addConstraint(Sketcher.Constraint("DistanceX", 2, 2, 2, 1, 16.0))
sketch10.addConstraint(Sketcher.Constraint("DistanceX", -1, 1, 1, 3, 23.0))
sketch10.addConstraint(Sketcher.Constraint("DistanceY", -1, 1, 1, 3, 31.0))
pocket4 = body.newObject("PartDesign::Pocket", "Pocket003")
pocket4.Profile = sketch10
pocket4.Length = 10

# Sketch on XY plane
sketch11 = body.newObject("Sketcher::SketchObject", "Sketch010")
sketch11.AttachmentSupport = (doc.getObject("XY_Plane"), [""])
sketch11.MapMode = "FlatFace"
sketch11.AttachmentOffset = App.Placement(Vector(0, 0, 2), App.Rotation())
sketch11.addGeometry(Part.Circle(Vector(-31.8, -39.1, 0), Vector(0, 0, 1), 1.2), False)
sketch11.addGeometry(Part.Circle(Vector(31.3, -39.1, 0), Vector(0, 0, 1), 1.2), False)
sketch11.addGeometry(Part.Circle(Vector(31.3, 38.9, 0), Vector(0, 0, 1), 1.2), False)
sketch11.addGeometry(Part.Circle(Vector(-31.8, 38.9, 0), Vector(0, 0, 1), 1.2), False)
sketch11.addConstraint(Sketcher.Constraint("Equal", 0, 1))
sketch11.addConstraint(Sketcher.Constraint("Equal", 1, 2))
sketch11.addConstraint(Sketcher.Constraint("Equal", 2, 3))
sketch11.addConstraint(Sketcher.Constraint("Horizontal", 0, 3, 1, 3))
sketch11.addConstraint(Sketcher.Constraint("Horizontal", 2, 3, 3, 3))
sketch11.addConstraint(Sketcher.Constraint("Vertical", 1, 3, 2, 3))
sketch11.addConstraint(Sketcher.Constraint("Vertical", 0, 3, 3, 3))
sketch11.addConstraint(Sketcher.Constraint("Diameter", 0, 2.5))
sketch11.addConstraint(Sketcher.Constraint("DistanceY", 1, 3, 2, 3, 78.0))
sketch11.addConstraint(Sketcher.Constraint("DistanceY", 0, 3, -1, 1, 39.06))
sketch11.addConstraint(Sketcher.Constraint("DistanceX", 0, 3, -1, 1, 31.790999))
sketch11.addConstraint(Sketcher.Constraint("DistanceX", -1, 1, 1, 3, 31.290015))
doc.recompute()
hole2 = body.newObject("PartDesign::Hole", "Hole001")
hole2.Profile = sketch11
hole2.ThreadType = "None"
hole2.Diameter = 2.5
hole2.DepthType = "Dimension"
hole2.Depth = 10
hole2.DrillPoint = "Angled"
hole2.DrillPointAngle = 118

# Sketch on XY plane
sketch12 = body.newObject("Sketcher::SketchObject", "Sketch011")
sketch12.AttachmentSupport = (doc.getObject("XY_Plane"), [""])
sketch12.MapMode = "FlatFace"
sketch12.AttachmentOffset = App.Placement(Vector(0, 0, 2), App.Rotation())
sketch12.addGeometry(Part.Circle(Vector(40, -40, 0), Vector(0, 0, 1), 1.2), False)
sketch12.addGeometry(Part.Circle(Vector(-40, -40, 0), Vector(0, 0, 1), 1.2), False)
sketch12.addGeometry(Part.Circle(Vector(-40, 40, 0), Vector(0, 0, 1), 1.2), False)
sketch12.addGeometry(Part.Circle(Vector(40, 40, 0), Vector(0, 0, 1), 1.2), False)
sketch12.addConstraint(Sketcher.Constraint("Equal", 0, 1))
sketch12.addConstraint(Sketcher.Constraint("Equal", 1, 2))
sketch12.addConstraint(Sketcher.Constraint("Equal", 2, 3))
sketch12.addConstraint(Sketcher.Constraint("Symmetric", 0, 3, 2, 3, -1, 1))
sketch12.addConstraint(Sketcher.Constraint("Symmetric", 1, 3, 3, 3, -1, 1))
sketch12.addConstraint(Sketcher.Constraint("Symmetric", 0, 3, 1, 3, -2))
sketch12.addConstraint(Sketcher.Constraint("Diameter", 0, 2.5))
sketch12.addConstraint(Sketcher.Constraint("DistanceX", -1, 1, 0, 3, 40.0))
sketch12.addConstraint(Sketcher.Constraint("DistanceY", 0, 3, -1, 1, 40.0))
doc.recompute()
hole3 = body.newObject("PartDesign::Hole", "Hole002")
hole3.Profile = sketch12
hole3.ThreadType = "None"
hole3.Diameter = 2.5
hole3.DepthType = "ThroughAll"

doc.recompute()
